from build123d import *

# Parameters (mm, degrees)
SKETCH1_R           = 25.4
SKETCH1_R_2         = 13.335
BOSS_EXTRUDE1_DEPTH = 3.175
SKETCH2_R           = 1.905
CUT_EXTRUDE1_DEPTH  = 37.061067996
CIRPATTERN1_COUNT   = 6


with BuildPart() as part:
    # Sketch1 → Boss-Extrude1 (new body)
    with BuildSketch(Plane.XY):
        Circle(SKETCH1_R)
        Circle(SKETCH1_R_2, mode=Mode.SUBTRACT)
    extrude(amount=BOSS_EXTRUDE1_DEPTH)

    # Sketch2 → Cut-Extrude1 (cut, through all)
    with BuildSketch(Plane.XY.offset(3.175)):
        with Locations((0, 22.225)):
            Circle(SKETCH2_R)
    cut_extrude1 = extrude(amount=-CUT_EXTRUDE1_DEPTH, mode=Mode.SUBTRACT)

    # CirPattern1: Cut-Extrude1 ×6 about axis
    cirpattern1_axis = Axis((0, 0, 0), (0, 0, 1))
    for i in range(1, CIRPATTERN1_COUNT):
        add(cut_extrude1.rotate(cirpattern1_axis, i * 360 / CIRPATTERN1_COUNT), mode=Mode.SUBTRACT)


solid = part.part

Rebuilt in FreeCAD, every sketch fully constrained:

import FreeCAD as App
import Part
import Sketcher

V = App.Vector
Q = App.Units.Quantity

doc = App.newDocument("Part")
params = doc.addObject("Spreadsheet::Sheet", "Params")
for row, (alias, value) in enumerate([
    ("sketch1_diameter", "2 in"),
    ("sketch1_diameter2", "1.05 in"),
    ("pad1_length", "0.125 in"),
    ("sketch2_diameter", "0.15 in"),
], start=1):
    params.set(f"A{row}", alias)
    params.set(f"B{row}", "=" + value)
    params.setAlias(f"B{row}", alias)

body = doc.addObject("PartDesign::Body", "Body")

# Sketch on XY plane
sketch1 = body.newObject("Sketcher::SketchObject", "Sketch")
sketch1.AttachmentSupport = (doc.getObject("XY_Plane"), [""])
sketch1.MapMode = "FlatFace"
sketch1.addGeometry([
    Part.Circle(V(0, 0, 0), V(0, 0, 1), 25),
    Part.Circle(V(0, 0, 0), V(0, 0, 1), 13),
], False)
sketch1.addConstraint([
    Sketcher.Constraint("Coincident", 0, 3, -1, 1),
    Sketcher.Constraint("Coincident", 1, 3, -1, 1),
    Sketcher.Constraint("Diameter", 0, Q("2 in")),
    Sketcher.Constraint("Diameter", 1, Q("1.05 in")),
])
sketch1.setExpression("Constraints[2]", "Params.sketch1_diameter")
sketch1.setExpression("Constraints[3]", "Params.sketch1_diameter2")
pad1 = body.newObject("PartDesign::Pad", "Pad")
pad1.Profile = sketch1
pad1.setExpression("Length", "Params.pad1_length")

# Sketch on XY plane
sketch2 = body.newObject("Sketcher::SketchObject", "Sketch001")
sketch2.AttachmentSupport = (doc.getObject("XY_Plane"), [""])
sketch2.MapMode = "FlatFace"
sketch2.AttachmentOffset = App.Placement(V(0, 0, 0.125 * 25.4), App.Rotation())
sketch2.addGeometry(Part.Circle(V(0, 22.2, 0), V(0, 0, 1), 1.9), False)
sketch2.addConstraint([
    Sketcher.Constraint("PointOnObject", 0, 3, -2),
    Sketcher.Constraint("Diameter", 0, Q("0.15 in")),
    Sketcher.Constraint("DistanceY", -1, 1, 0, 3, Q("0.875 in")),
])
sketch2.setExpression("Constraints[1]", "Params.sketch2_diameter")
pocket1 = body.newObject("PartDesign::Pocket", "Pocket")
pocket1.Profile = sketch2
pocket1.Type = "ThroughAll"
doc.recompute()

polarpattern = body.newObject("PartDesign::PolarPattern", "PolarPattern")
polarpattern.Originals = [pocket1]
polarpattern.Axis = (doc.getObject("Z_Axis"), [""])
polarpattern.Angle = 360
polarpattern.Occurrences = 6
body.Tip = polarpattern

doc.recompute()
